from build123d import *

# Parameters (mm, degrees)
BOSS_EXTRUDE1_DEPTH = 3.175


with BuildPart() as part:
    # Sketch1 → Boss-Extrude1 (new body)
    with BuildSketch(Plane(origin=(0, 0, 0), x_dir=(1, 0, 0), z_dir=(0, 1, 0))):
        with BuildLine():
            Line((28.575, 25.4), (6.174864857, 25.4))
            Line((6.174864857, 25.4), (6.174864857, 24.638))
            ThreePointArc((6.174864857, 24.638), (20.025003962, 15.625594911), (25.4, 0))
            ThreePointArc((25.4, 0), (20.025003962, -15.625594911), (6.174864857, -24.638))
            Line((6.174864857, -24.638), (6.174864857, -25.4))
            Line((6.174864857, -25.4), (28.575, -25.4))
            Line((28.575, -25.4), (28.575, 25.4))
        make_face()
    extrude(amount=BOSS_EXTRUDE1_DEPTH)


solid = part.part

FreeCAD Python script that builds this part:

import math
import FreeCAD as App
import Part
import Sketcher

V = App.Vector
Q = App.Units.Quantity

doc = App.newDocument("Part")
body = doc.addObject("PartDesign::Body", "Body")

# Sketch on XZ plane
sketch1 = body.newObject("Sketcher::SketchObject", "Sketch")
sketch1.AttachmentSupport = (doc.getObject("XZ_Plane"), [""])
sketch1.MapMode = "FlatFace"
sketch1.addGeometry([
    Part.LineSegment(V(28.6, -25.4, 0), V(6.2, -25.4, 0)),  # 0
    Part.LineSegment(V(6.2, -25.4, 0), V(6.2, -24.6, 0)),  # 1
    Part.ArcOfCircle(Part.Circle(V(0, 0, 0), V(0, 0, 1), 25.4), math.radians(-76), math.radians(76)),  # 2
    Part.LineSegment(V(6.2, 24.6, 0), V(6.2, 25.4, 0)),  # 3
    Part.LineSegment(V(6.2, 25.4, 0), V(28.6, 25.4, 0)),  # 4
    Part.LineSegment(V(28.6, 25.4, 0), V(28.6, -25.4, 0)),  # 5
], False)
sketch1.addConstraint([
    Sketcher.Constraint("Coincident", 0, 2, 1, 1),
    Sketcher.Constraint("Coincident", 1, 2, 2, 1),
    Sketcher.Constraint("Coincident", 2, 2, 3, 1),
    Sketcher.Constraint("Coincident", 3, 2, 4, 1),
    Sketcher.Constraint("Coincident", 4, 2, 5, 1),
    Sketcher.Constraint("Coincident", 5, 2, 0, 1),
    Sketcher.Constraint("Horizontal", 0),
    Sketcher.Constraint("Vertical", 1),
    Sketcher.Constraint("Vertical", 3),
    Sketcher.Constraint("Horizontal", 4),
    Sketcher.Constraint("Vertical", 5),
    Sketcher.Constraint("Coincident", 2, 3, -1, 1),
    Sketcher.Constraint("Symmetric", 0, 2, 3, 2, -1),
    Sketcher.Constraint("Radius", 2, Q("1 in")),
    Sketcher.Constraint("DistanceY", 5, 2, 5, 1, Q("2 in")),
    Sketcher.Constraint("DistanceY", 1, 1, 1, 2, Q("0.03 in")),
    Sketcher.Constraint("DistanceX", -1, 1, 4, 2, Q("1.125 in")),
])
pad1 = body.newObject("PartDesign::Pad", "Pad")
pad1.Profile = sketch1
pad1.Length = Q("0.125 in")
pad1.Reversed = True

doc.recompute()
